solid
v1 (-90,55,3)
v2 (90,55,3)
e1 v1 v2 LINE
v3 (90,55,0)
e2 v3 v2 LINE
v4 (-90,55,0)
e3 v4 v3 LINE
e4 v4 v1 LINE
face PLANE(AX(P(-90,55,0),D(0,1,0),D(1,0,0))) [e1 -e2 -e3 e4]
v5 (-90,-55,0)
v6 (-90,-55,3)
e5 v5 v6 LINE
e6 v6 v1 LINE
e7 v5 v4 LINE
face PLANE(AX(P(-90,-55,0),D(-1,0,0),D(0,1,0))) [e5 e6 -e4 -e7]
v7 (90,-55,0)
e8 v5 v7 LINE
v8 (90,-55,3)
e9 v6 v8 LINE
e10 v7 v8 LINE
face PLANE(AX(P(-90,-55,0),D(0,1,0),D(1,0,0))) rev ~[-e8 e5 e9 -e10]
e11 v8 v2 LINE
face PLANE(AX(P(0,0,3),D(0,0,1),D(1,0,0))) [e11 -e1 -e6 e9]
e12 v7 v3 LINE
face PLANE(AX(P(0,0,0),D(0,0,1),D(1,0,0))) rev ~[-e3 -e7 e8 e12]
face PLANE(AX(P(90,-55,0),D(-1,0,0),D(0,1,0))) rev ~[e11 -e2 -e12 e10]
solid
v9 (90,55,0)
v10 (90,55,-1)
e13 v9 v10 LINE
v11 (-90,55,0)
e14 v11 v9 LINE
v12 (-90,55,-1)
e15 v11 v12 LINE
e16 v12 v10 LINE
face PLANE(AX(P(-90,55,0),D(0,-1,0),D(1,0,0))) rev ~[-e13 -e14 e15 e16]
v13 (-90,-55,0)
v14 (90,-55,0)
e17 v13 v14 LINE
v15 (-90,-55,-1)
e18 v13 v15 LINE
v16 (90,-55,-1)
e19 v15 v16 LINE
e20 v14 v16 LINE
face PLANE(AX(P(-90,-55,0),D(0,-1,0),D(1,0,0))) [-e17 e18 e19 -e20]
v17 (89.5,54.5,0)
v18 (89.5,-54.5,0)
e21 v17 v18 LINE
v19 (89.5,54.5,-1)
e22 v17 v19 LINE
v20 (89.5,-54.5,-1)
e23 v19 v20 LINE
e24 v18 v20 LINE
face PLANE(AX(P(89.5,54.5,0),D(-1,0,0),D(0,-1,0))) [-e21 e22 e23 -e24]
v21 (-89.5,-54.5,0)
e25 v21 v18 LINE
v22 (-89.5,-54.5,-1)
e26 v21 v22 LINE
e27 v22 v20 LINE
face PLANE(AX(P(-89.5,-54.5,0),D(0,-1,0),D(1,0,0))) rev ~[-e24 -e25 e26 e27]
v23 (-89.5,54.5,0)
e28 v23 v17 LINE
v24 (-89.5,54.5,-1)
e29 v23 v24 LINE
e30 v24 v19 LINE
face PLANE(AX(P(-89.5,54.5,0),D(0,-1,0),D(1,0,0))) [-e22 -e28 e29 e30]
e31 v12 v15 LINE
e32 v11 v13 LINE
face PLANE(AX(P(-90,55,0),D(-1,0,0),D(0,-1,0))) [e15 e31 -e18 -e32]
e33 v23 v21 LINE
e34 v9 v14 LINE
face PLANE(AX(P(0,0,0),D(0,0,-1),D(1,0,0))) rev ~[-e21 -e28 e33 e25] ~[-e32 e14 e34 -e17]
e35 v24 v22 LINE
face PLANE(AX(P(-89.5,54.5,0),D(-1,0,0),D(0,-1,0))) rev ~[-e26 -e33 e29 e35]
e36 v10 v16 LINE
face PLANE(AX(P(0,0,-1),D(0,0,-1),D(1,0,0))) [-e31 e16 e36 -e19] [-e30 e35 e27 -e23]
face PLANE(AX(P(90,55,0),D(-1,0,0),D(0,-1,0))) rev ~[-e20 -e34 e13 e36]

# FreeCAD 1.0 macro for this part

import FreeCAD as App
import Part
import Sketcher
from FreeCAD import Vector


def add_polygon(sketch, points):
    """Adds a closed chain of lines whose ends are joined by coincident constraints."""
    first, n = sketch.GeometryCount, len(points)
    for a, b in zip(points, points[1:] + points[:1]):
        sketch.addGeometry(Part.LineSegment(App.Vector(*a, 0), App.Vector(*b, 0)), False)
    for i in range(n):
        sketch.addConstraint(Sketcher.Constraint("Coincident", first + i, 2, first + (i + 1) % n, 1))

doc = App.newDocument("Part")
params = doc.addObject("Spreadsheet::Sheet", "Params")
for row, (alias, value) in enumerate([
    ("sketch1_width", "180 mm"),
    ("sketch1_height", "110 mm"),
    ("pad1_length", "3 mm"),
    ("sketch2_width", "180 mm"),
    ("sketch2_width2", "179 mm"),
    ("sketch2_height", "110 mm"),
    ("sketch2_height2", "109 mm"),
    ("pad2_length", "1 mm"),
], start=1):
    params.set(f"A{row}", alias)
    params.set(f"B{row}", "=" + value)
    params.setAlias(f"B{row}", alias)

body = doc.addObject("PartDesign::Body", "Body")

# Sketch on XY plane
sketch1 = body.newObject("Sketcher::SketchObject", "Sketch")
sketch1.AttachmentSupport = (doc.getObject("XY_Plane"), [""])
sketch1.MapMode = "FlatFace"
add_polygon(sketch1, [(-90, 55), (-90, -55), (90, -55), (90, 55)])  # lines 0-3
sketch1.addConstraint([
    Sketcher.Constraint("Vertical", 0),
    Sketcher.Constraint("Horizontal", 1),
    Sketcher.Constraint("Vertical", 2),
    Sketcher.Constraint("Horizontal", 3),
    Sketcher.Constraint("Symmetric", 0, 2, 2, 2, -1, 1),
    Sketcher.Constraint("DistanceX", 1, 1, 1, 2, 180.0),
    Sketcher.Constraint("DistanceY", 0, 2, 0, 1, 110.0),
])
sketch1.setExpression("Constraints[9]", "Params.sketch1_width")
sketch1.setExpression("Constraints[10]", "Params.sketch1_height")
pad1 = body.newObject("PartDesign::Pad", "Pad")
pad1.Profile = sketch1
pad1.setExpression("Length", "Params.pad1_length")
body2 = doc.addObject("PartDesign::Body", "Body001")

# Sketch on XY plane
sketch2 = body2.newObject("Sketcher::SketchObject", "Sketch001")
sketch2.AttachmentSupport = (doc.getObject("XY_Plane001"), [""])
sketch2.MapMode = "FlatFace"
add_polygon(sketch2, [(-90, -55), (-90, 55), (90, 55), (90, -55)])  # lines 0-3
add_polygon(sketch2, [(90, 54), (-90, 54), (-90, -54), (90, -54)])  # lines 4-7
sketch2.addConstraint([
    Sketcher.Constraint("Vertical", 0),
    Sketcher.Constraint("Horizontal", 1),
    Sketcher.Constraint("Vertical", 2),
    Sketcher.Constraint("Horizontal", 3),
    Sketcher.Constraint("Horizontal", 4),
    Sketcher.Constraint("Vertical", 5),
    Sketcher.Constraint("Horizontal", 6),
    Sketcher.Constraint("Vertical", 7),
    Sketcher.Constraint("Symmetric", 0, 2, 2, 2, -1, 1),
    Sketcher.Constraint("Symmetric", 4, 2, 6, 2, -1, 1),
    Sketcher.Constraint("DistanceX", 1, 1, 1, 2, 180.0),
    Sketcher.Constraint("DistanceX", 4, 2, 4, 1, 179.0),
    Sketcher.Constraint("DistanceY", 0, 1, 0, 2, 110.0),
    Sketcher.Constraint("DistanceY", 5, 2, 5, 1, 109.0),
])
sketch2.setExpression("Constraints[18]", "Params.sketch2_width")
sketch2.setExpression("Constraints[19]", "Params.sketch2_width2")
sketch2.setExpression("Constraints[20]", "Params.sketch2_height")
sketch2.setExpression("Constraints[21]", "Params.sketch2_height2")
pad2 = body2.newObject("PartDesign::Pad", "Pad001")
pad2.Profile = sketch2
pad2.setExpression("Length", "Params.pad2_length")
pad2.Reversed = True

doc.recompute()
